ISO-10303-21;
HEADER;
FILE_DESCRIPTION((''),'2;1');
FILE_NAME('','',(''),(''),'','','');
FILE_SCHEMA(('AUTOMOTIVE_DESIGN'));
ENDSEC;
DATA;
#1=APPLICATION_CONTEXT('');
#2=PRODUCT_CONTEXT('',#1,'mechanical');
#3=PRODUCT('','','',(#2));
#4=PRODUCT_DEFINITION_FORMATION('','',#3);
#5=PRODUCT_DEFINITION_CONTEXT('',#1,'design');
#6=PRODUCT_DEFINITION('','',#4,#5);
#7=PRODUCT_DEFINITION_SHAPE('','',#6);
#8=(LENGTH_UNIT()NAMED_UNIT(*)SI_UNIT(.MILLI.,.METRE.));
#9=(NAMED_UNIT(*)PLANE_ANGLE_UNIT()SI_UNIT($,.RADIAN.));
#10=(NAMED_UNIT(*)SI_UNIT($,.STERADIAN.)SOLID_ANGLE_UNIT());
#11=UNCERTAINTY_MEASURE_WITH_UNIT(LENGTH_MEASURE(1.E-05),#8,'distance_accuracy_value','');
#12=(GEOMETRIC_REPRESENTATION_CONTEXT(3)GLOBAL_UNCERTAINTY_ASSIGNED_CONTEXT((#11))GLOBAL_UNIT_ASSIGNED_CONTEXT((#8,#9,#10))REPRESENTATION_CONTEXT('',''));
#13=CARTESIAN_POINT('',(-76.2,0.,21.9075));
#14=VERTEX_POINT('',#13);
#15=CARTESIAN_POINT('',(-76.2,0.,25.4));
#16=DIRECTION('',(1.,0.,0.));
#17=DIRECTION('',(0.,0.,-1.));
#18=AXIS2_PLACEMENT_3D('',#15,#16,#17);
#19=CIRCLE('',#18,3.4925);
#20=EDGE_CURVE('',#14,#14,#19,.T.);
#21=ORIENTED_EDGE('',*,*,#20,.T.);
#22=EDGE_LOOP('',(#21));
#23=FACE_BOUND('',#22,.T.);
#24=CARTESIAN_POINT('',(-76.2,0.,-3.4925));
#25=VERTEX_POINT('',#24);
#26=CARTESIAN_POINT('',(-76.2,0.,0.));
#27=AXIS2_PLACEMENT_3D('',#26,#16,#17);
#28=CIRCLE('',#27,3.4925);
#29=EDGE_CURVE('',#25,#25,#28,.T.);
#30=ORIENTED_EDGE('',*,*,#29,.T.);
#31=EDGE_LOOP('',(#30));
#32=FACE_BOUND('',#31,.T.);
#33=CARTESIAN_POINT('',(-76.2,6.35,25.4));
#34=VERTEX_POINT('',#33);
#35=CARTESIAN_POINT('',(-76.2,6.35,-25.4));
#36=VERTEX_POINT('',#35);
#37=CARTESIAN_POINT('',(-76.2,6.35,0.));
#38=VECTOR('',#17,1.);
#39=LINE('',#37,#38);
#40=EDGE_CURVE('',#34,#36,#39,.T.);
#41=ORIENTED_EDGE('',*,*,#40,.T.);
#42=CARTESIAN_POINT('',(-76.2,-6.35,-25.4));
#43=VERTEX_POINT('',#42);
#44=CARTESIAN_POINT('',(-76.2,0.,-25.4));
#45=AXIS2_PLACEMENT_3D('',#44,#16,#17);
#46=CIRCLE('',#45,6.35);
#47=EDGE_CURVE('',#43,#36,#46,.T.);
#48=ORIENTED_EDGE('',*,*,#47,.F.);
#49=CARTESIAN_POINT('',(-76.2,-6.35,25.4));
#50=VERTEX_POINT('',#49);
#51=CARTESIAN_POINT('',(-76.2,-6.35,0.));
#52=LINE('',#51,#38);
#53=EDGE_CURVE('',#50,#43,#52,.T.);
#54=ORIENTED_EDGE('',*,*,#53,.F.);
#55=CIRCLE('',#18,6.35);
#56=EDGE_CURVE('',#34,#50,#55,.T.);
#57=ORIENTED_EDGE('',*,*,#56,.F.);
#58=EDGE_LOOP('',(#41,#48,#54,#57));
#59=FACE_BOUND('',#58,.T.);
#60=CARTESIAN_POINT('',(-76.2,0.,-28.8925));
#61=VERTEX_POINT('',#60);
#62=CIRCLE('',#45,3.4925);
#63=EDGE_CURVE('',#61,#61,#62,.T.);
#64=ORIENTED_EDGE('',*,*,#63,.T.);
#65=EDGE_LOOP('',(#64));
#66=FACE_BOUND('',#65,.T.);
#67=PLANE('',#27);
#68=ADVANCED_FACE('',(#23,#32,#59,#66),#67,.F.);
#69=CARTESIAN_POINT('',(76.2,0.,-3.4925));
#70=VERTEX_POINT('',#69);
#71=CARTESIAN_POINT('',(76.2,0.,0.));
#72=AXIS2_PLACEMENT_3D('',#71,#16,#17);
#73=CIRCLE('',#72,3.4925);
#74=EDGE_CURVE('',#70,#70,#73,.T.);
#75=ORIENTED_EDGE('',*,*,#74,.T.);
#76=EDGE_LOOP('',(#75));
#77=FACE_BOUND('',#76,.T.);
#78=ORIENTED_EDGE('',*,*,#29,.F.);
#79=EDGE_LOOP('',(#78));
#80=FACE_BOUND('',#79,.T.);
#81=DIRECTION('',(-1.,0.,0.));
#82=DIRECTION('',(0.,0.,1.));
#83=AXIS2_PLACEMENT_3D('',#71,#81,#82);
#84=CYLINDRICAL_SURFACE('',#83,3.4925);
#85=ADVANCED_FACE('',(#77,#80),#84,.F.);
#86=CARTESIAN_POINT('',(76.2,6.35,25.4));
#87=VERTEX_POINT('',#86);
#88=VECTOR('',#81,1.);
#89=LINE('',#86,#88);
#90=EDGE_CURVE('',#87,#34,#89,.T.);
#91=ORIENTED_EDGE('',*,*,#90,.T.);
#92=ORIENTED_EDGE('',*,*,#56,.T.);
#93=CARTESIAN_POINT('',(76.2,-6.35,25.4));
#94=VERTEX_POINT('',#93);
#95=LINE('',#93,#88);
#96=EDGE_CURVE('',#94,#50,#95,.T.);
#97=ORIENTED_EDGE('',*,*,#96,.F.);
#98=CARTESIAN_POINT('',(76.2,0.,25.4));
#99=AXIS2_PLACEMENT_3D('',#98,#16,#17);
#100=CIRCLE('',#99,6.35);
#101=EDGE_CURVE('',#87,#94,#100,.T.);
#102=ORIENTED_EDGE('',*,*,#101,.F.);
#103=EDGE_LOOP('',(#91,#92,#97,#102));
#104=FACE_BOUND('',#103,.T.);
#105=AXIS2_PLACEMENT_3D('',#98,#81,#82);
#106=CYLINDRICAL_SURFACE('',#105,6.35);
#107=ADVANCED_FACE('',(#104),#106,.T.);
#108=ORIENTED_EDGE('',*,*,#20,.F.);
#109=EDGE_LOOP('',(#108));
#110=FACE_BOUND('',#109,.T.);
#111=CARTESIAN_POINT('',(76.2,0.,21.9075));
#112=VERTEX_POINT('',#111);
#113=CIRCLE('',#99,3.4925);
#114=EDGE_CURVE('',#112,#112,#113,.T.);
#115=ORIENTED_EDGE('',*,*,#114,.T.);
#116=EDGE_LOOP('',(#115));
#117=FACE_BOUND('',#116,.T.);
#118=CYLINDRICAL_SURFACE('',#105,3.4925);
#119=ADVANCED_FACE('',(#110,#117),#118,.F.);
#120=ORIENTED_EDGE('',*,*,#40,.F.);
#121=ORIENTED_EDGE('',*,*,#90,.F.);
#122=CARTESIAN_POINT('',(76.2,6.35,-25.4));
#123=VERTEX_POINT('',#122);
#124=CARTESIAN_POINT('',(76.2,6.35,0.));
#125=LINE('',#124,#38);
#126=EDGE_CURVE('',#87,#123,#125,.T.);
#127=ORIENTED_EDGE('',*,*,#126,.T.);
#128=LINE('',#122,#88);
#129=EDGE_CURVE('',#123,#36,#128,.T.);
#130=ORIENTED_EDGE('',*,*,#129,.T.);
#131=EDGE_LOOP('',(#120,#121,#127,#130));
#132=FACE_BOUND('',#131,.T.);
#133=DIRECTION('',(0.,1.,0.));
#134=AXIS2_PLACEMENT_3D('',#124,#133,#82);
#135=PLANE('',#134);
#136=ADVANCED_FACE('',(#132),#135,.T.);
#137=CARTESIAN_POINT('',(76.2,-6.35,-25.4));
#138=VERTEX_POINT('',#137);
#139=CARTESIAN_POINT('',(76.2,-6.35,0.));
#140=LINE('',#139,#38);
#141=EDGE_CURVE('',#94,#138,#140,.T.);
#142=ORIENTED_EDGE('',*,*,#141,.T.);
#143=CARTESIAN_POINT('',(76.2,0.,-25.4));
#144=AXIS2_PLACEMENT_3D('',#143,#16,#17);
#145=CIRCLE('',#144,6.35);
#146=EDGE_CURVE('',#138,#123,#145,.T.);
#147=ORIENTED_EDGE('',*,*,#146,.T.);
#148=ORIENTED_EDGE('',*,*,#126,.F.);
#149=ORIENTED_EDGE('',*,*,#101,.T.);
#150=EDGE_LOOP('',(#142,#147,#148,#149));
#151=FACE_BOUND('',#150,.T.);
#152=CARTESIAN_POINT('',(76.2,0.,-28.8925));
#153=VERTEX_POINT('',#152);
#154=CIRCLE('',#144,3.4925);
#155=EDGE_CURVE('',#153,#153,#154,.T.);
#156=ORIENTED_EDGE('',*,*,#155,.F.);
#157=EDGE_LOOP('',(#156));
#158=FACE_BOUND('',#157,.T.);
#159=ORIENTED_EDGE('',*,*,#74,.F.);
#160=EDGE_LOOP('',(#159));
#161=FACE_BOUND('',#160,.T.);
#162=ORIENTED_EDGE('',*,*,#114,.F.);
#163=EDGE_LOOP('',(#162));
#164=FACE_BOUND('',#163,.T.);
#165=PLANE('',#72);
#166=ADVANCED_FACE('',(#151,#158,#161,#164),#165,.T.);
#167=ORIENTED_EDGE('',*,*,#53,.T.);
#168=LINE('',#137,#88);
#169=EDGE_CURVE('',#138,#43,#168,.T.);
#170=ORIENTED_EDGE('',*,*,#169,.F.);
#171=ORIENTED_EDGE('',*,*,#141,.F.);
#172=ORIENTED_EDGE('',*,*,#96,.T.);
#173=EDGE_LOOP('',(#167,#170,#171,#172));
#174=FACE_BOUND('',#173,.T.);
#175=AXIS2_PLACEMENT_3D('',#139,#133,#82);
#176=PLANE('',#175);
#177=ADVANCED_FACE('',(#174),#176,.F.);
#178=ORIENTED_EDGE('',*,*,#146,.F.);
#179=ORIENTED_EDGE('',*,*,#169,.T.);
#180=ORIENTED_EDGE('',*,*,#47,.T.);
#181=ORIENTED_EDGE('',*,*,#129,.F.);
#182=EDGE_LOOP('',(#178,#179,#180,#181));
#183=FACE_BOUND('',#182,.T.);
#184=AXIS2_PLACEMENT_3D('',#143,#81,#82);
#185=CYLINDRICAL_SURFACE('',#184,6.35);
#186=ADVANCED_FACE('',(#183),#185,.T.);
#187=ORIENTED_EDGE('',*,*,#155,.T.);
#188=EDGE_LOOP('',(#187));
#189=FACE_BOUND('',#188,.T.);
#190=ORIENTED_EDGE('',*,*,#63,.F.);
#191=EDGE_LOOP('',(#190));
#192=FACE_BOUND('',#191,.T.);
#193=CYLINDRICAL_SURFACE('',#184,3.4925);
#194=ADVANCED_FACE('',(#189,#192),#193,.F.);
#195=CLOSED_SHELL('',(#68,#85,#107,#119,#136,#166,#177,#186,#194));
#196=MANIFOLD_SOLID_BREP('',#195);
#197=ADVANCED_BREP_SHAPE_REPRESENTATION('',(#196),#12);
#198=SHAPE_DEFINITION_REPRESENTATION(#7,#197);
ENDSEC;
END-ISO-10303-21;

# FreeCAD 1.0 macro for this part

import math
import FreeCAD as App
import Part
import Sketcher

V = App.Vector
Q = App.Units.Quantity

doc = App.newDocument("Part")
body = doc.addObject("PartDesign::Body", "Body")

# Sketch on YZ plane
sketch1 = body.newObject("Sketcher::SketchObject", "Sketch")
sketch1.AttachmentSupport = (doc.getObject("YZ_Plane"), [""])
sketch1.MapMode = "FlatFace"
sketch1.addGeometry(Part.LineSegment(V(-6.35, 25.4, 0), V(-6.35, -25.4, 0)), False)
sketch1.addGeometry(Part.ArcOfCircle(Part.Circle(V(0, -25.4, 0), V(0, 0, 1), 6.35), math.radians(180), math.radians(360)), False)
sketch1.addGeometry(Part.LineSegment(V(6.35, -25.4, 0), V(6.35, 25.4, 0)), False)
sketch1.addGeometry(Part.ArcOfCircle(Part.Circle(V(0, 25.4, 0), V(0, 0, 1), 6.35), math.radians(0), math.radians(180)), False)
sketch1.addGeometry(Part.Circle(V(0, 25.4, 0), V(0, 0, 1), 3.4925), False)
sketch1.addGeometry(Part.Circle(V(0, 0, 0), V(0, 0, 1), 3.4925), False)
sketch1.addGeometry(Part.Circle(V(0, -25.4, 0), V(0, 0, 1), 3.4925), False)
sketch1.addConstraint(Sketcher.Constraint("Tangent", 0, 2, 1, 1))
sketch1.addConstraint(Sketcher.Constraint("Tangent", 1, 2, 2, 1))
sketch1.addConstraint(Sketcher.Constraint("Tangent", 2, 2, 3, 1))
sketch1.addConstraint(Sketcher.Constraint("Tangent", 3, 2, 0, 1))
sketch1.addConstraint(Sketcher.Constraint("Vertical", 0))
sketch1.addConstraint(Sketcher.Constraint("Vertical", 2))
sketch1.addConstraint(Sketcher.Constraint("Coincident", 5, 3, -1, 1))
sketch1.addConstraint(Sketcher.Constraint("Coincident", 4, 3, 3, 3))
sketch1.addConstraint(Sketcher.Constraint("Coincident", 6, 3, 1, 3))
sketch1.addConstraint(Sketcher.Constraint("Equal", 4, 5))
sketch1.addConstraint(Sketcher.Constraint("Equal", 5, 6))
sketch1.addConstraint(Sketcher.Constraint("Symmetric", 1, 3, 3, 3, -1, 1))
sketch1.addConstraint(Sketcher.Constraint("DistanceY", 0, 2, 0, 1, Q("2 in")))
sketch1.addConstraint(Sketcher.Constraint("Radius", 1, Q("0.25 in")))
sketch1.addConstraint(Sketcher.Constraint("Diameter", 4, Q("0.275 in")))
pad1 = body.newObject("PartDesign::Pad", "Pad")
pad1.Profile = sketch1
pad1.Length = Q("6 in")
pad1.Midplane = True

doc.recompute()
